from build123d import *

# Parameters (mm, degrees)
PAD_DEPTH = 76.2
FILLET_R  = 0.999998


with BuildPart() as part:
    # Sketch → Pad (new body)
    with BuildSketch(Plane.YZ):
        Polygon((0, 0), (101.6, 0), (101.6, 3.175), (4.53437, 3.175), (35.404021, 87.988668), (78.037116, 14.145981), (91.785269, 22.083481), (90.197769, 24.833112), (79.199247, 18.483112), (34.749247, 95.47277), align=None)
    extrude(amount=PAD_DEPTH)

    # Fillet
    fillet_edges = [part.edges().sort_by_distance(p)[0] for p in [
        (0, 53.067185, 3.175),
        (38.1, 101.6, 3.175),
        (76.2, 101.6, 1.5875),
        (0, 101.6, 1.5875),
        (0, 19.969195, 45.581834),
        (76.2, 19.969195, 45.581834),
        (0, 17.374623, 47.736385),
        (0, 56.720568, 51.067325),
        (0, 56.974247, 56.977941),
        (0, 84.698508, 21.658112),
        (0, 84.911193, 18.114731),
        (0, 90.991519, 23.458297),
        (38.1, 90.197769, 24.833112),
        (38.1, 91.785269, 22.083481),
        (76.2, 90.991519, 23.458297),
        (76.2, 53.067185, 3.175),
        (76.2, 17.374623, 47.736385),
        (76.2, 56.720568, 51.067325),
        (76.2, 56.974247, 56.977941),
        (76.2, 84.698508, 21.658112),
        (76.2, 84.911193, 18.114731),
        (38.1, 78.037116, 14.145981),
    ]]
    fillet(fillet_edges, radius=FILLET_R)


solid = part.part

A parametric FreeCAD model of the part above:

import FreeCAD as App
import Part
import Sketcher
Q = App.Units.Quantity


def edges_at(feature, points):
    """Names of the edges that pass closest to the given points."""
    edges = feature.Shape.Edges
    near = lambda p: min(range(len(edges)), key=lambda i: edges[i].distToShape(Part.Vertex(*p))[0])
    return sorted({f"Edge{near(p) + 1}" for p in points})

doc = App.newDocument("Part")
body = doc.addObject("PartDesign::Body", "Body")

sketch1 = body.newObject("Sketcher::SketchObject", "Sketch")
sketch1.AttachmentSupport = (doc.getObject("YZ_Plane"), [""])
sketch1.MapMode = "FlatFace"
sketch1.addGeometry([
    Part.LineSegment(App.Vector(0, 0, 0), App.Vector(101.6, 0, 0)),
    Part.LineSegment(App.Vector(101.6, 0, 0), App.Vector(101.6, 3.2, 0)),
    Part.LineSegment(App.Vector(101.6, 3.2, 0), App.Vector(4.5, 3.2, 0)),
    Part.LineSegment(App.Vector(4.5, 3.2, 0), App.Vector(35.4, 88, 0)),
    Part.LineSegment(App.Vector(35.4, 88, 0), App.Vector(78, 14.1, 0)),
    Part.LineSegment(App.Vector(78, 14.1, 0), App.Vector(91.8, 22.1, 0)),
    Part.LineSegment(App.Vector(91.8, 22.1, 0), App.Vector(90.2, 24.8, 0)),
    Part.LineSegment(App.Vector(90.2, 24.8, 0), App.Vector(79.2, 18.5, 0)),
    Part.LineSegment(App.Vector(79.2, 18.5, 0), App.Vector(34.7, 95.5, 0)),
    Part.LineSegment(App.Vector(34.7, 95.5, 0), App.Vector(0, 0, 0)),
], False)
sketch1.addConstraint([
    Sketcher.Constraint("Coincident", 0, 2, 1, 1),
    Sketcher.Constraint("Coincident", 1, 2, 2, 1),
    Sketcher.Constraint("Coincident", 2, 2, 3, 1),
    Sketcher.Constraint("Coincident", 3, 2, 4, 1),
    Sketcher.Constraint("Coincident", 4, 2, 5, 1),
    Sketcher.Constraint("Coincident", 5, 2, 6, 1),
    Sketcher.Constraint("Coincident", 6, 2, 7, 1),
    Sketcher.Constraint("Coincident", 7, 2, 8, 1),
    Sketcher.Constraint("Coincident", 8, 2, 9, 1),
    Sketcher.Constraint("Coincident", 9, 2, 0, 1),
    Sketcher.Constraint("Horizontal", 0),
    Sketcher.Constraint("Vertical", 1),
    Sketcher.Constraint("Horizontal", 2),
    Sketcher.Constraint("Coincident", 9, 2, -1, 1),
    Sketcher.Constraint("Perpendicular", 4, 5),
    Sketcher.Constraint("Perpendicular", 5, 6),
    Sketcher.Constraint("Perpendicular", 6, 7),
    Sketcher.Constraint("Perpendicular", 7, 8),
    Sketcher.Constraint("Parallel", 3, 9),
    Sketcher.Constraint("DistanceX", 0, 1, 0, 2, Q("4 in")),
    Sketcher.Constraint("Distance", 9, Q("4 in")),
    Sketcher.Constraint("Angle", 3, Q("70 deg")),
    Sketcher.Constraint("Angle", 4, Q("-60 deg")),
    Sketcher.Constraint("Distance", 7, Q("0.5 in")),
    Sketcher.Constraint("Distance", 8, Q("3.5 in")),
    Sketcher.Constraint("DistanceY", 1, 1, 1, 2, Q("0.125 in")),
    Sketcher.Constraint("Distance", 5, Q("0.625 in")),
    Sketcher.Constraint("Distance", 6, Q("0.125 in")),
    Sketcher.Constraint("DistanceX", 2, 2, 2, 1, 97.06563),
])
pad1 = body.newObject("PartDesign::Pad", "Pad")
pad1.Profile = sketch1
pad1.Length = Q("3 in")
doc.recompute()

fillet = body.newObject("PartDesign::Fillet", "Fillet")
fillet.Base = (pad1, edges_at(pad1, [
    (0, 53.067, 3.175),
    (38.1, 101.6, 3.175),
    (76.2, 101.6, 1.587),
    (0, 101.6, 1.587),
    (0, 19.969, 45.582),
    (76.2, 19.969, 45.582),
    (0, 17.375, 47.736),
    (0, 56.721, 51.067),
    (0, 56.974, 56.978),
    (0, 84.699, 21.658),
    (0, 84.911, 18.115),
    (0, 90.992, 23.458),
    (38.1, 90.198, 24.833),
    (38.1, 91.785, 22.083),
    (76.2, 90.992, 23.458),
    (76.2, 53.067, 3.175),
    (76.2, 17.375, 47.736),
    (76.2, 56.721, 51.067),
    (76.2, 56.974, 56.978),
    (76.2, 84.699, 21.658),
    (76.2, 84.911, 18.115),
    (38.1, 78.037, 14.146),
]))
fillet.Radius = 0.999998

doc.recompute()
